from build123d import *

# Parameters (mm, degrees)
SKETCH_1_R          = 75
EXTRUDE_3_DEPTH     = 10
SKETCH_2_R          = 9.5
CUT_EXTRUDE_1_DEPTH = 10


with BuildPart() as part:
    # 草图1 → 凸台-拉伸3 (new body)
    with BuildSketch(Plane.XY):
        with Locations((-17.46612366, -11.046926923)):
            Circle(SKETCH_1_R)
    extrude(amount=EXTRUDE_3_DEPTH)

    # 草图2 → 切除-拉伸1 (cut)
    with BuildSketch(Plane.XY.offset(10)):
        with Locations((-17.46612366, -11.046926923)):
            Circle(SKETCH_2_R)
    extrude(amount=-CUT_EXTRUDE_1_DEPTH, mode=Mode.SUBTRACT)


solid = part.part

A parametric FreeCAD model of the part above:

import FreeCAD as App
import Part
import Sketcher

doc = App.newDocument("Part")
params = doc.addObject("Spreadsheet::Sheet", "Params")
for row, (alias, value) in enumerate([
    ("sketch1_diameter", "150 mm"),
    ("pad1_length", "10 mm"),
    ("sketch2_diameter", "19 mm"),
    ("pocket1_length", "10 mm"),
], start=1):
    params.set(f"A{row}", alias)
    params.set(f"B{row}", "=" + value)
    params.setAlias(f"B{row}", alias)

body = doc.addObject("PartDesign::Body", "Body")

# Sketch on XY plane
sketch1 = body.newObject("Sketcher::SketchObject", "Sketch")
sketch1.AttachmentSupport = (doc.getObject("XY_Plane"), [""])
sketch1.MapMode = "FlatFace"
sketch1.addGeometry(Part.Circle(App.Vector(-17, -11, 0), App.Vector(0, 0, 1), 75), False)
sketch1.addConstraint(Sketcher.Constraint("Diameter", 0, 150.0))
sketch1.addConstraint(Sketcher.Constraint("DistanceX", 0, 3, -1, 1, 17.466124))
sketch1.addConstraint(Sketcher.Constraint("DistanceY", 0, 3, -1, 1, 11.046927))
sketch1.setExpression("Constraints[0]", "Params.sketch1_diameter")
pad1 = body.newObject("PartDesign::Pad", "Pad")
pad1.Profile = sketch1
pad1.setExpression("Length", "Params.pad1_length")

# Sketch on XY plane
sketch2 = body.newObject("Sketcher::SketchObject", "Sketch001")
sketch2.AttachmentSupport = (doc.getObject("XY_Plane"), [""])
sketch2.MapMode = "FlatFace"
sketch2.AttachmentOffset = App.Placement(App.Vector(0, 0, 10), App.Rotation())
sketch2.addGeometry(Part.Circle(App.Vector(-17, -11, 0), App.Vector(0, 0, 1), 10), False)
sketch2.addConstraint(Sketcher.Constraint("Diameter", 0, 19.0))
sketch2.addConstraint(Sketcher.Constraint("DistanceX", 0, 3, -1, 1, 17.466124))
sketch2.addConstraint(Sketcher.Constraint("DistanceY", 0, 3, -1, 1, 11.046927))
sketch2.setExpression("Constraints[0]", "Params.sketch2_diameter")
pocket1 = body.newObject("PartDesign::Pocket", "Pocket")
pocket1.Profile = sketch2
pocket1.setExpression("Length", "Params.pocket1_length")

doc.recompute()
